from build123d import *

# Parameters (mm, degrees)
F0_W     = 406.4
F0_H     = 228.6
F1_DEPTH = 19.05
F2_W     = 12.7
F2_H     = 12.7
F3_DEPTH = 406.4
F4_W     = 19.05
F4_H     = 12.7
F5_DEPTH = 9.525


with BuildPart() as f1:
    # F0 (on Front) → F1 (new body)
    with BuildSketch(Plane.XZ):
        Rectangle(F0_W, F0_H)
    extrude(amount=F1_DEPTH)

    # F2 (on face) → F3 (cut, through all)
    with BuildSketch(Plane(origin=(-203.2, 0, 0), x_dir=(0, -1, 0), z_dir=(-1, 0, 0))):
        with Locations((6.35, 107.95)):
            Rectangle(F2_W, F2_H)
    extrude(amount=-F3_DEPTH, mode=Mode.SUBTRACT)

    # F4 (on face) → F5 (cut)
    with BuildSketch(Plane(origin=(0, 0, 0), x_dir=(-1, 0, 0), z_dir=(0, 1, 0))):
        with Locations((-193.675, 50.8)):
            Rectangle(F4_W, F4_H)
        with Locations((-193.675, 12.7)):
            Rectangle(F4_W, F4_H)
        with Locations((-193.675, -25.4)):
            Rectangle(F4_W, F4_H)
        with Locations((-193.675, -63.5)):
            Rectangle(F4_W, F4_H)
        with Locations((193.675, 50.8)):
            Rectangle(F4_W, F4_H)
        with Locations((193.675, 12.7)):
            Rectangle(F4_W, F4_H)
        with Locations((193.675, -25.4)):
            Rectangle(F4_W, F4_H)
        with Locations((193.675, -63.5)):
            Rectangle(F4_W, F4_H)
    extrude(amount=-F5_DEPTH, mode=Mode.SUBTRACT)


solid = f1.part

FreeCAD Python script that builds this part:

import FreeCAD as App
import Part
import Sketcher

V = App.Vector
Q = App.Units.Quantity


def add_polygon(sketch, points):
    """Adds a closed chain of lines whose ends are joined by coincident constraints."""
    first, n = sketch.GeometryCount, len(points)
    for a, b in zip(points, points[1:] + points[:1]):
        sketch.addGeometry(Part.LineSegment(App.Vector(*a, 0), App.Vector(*b, 0)), False)
    for i in range(n):
        sketch.addConstraint(Sketcher.Constraint("Coincident", first + i, 2, first + (i + 1) % n, 1))

doc = App.newDocument("Part")
body = doc.addObject("PartDesign::Body", "Body")

# Sketch on XZ plane
sketch1 = body.newObject("Sketcher::SketchObject", "Sketch")
sketch1.AttachmentSupport = (doc.getObject("XZ_Plane"), [""])
sketch1.MapMode = "FlatFace"
add_polygon(sketch1, [(-203, 114), (-203, -114), (203, -114), (203, 114)])  # lines 0-3
sketch1.addConstraint(Sketcher.Constraint("Vertical", 0))
sketch1.addConstraint(Sketcher.Constraint("Horizontal", 1))
sketch1.addConstraint(Sketcher.Constraint("Vertical", 2))
sketch1.addConstraint(Sketcher.Constraint("Horizontal", 3))
sketch1.addConstraint(Sketcher.Constraint("Symmetric", 0, 2, 2, 2, -1, 1))
sketch1.addConstraint(Sketcher.Constraint("DistanceX", 1, 1, 1, 2, Q("16 in")))
sketch1.addConstraint(Sketcher.Constraint("DistanceY", 0, 2, 0, 1, Q("9 in")))
pad1 = body.newObject("PartDesign::Pad", "Pad")
pad1.Profile = sketch1
pad1.Length = Q("0.75 in")

# Sketch on YZ plane
sketch2 = body.newObject("Sketcher::SketchObject", "Sketch001")
sketch2.AttachmentSupport = (doc.getObject("YZ_Plane"), [""])
sketch2.MapMode = "FlatFace"
sketch2.AttachmentOffset = App.Placement(V(0, 0, -8 * 25.4), App.Rotation())
add_polygon(sketch2, [(0, 114), (0, 102), (-13, 102), (-13, 114)])  # lines 0-3
sketch2.addConstraint(Sketcher.Constraint("Vertical", 0))
sketch2.addConstraint(Sketcher.Constraint("Horizontal", 1))
sketch2.addConstraint(Sketcher.Constraint("Vertical", 2))
sketch2.addConstraint(Sketcher.Constraint("Horizontal", 3))
sketch2.addConstraint(Sketcher.Constraint("PointOnObject", 0, 2, -2))
sketch2.addConstraint(Sketcher.Constraint("Equal", 3, 0))
sketch2.addConstraint(Sketcher.Constraint("DistanceX", 1, 2, 1, 1, Q("0.5 in")))
sketch2.addConstraint(Sketcher.Constraint("DistanceY", -1, 1, 0, 2, Q("4 in")))
pocket1 = body.newObject("PartDesign::Pocket", "Pocket")
pocket1.Profile = sketch2
pocket1.Type = "ThroughAll"
pocket1.Reversed = True

# Sketch on XZ plane
sketch3 = body.newObject("Sketcher::SketchObject", "Sketch002")
sketch3.AttachmentSupport = (doc.getObject("XZ_Plane"), [""])
sketch3.MapMode = "FlatFace"
add_polygon(sketch3, [(203, 57), (203, 44), (184, 44), (184, 57)])  # lines 0-3
add_polygon(sketch3, [(203, 19), (203, 6), (184, 6), (184, 19)])  # lines 4-7
add_polygon(sketch3, [(203, -19), (203, -32), (184, -32), (184, -19)])  # lines 8-11
add_polygon(sketch3, [(203, -57), (203, -70), (184, -70), (184, -57)])  # lines 12-15
add_polygon(sketch3, [(-184, 57), (-184, 44), (-203, 44), (-203, 57)])  # lines 16-19
add_polygon(sketch3, [(-184, 19), (-184, 6), (-203, 6), (-203, 19)])  # lines 20-23
add_polygon(sketch3, [(-184, -19), (-184, -32), (-203, -32), (-203, -19)])  # lines 24-27
add_polygon(sketch3, [(-184, -57), (-184, -70), (-203, -70), (-203, -57)])  # lines 28-31
sketch3.addConstraint(Sketcher.Constraint("Vertical", 0))
sketch3.addConstraint(Sketcher.Constraint("Horizontal", 1))
sketch3.addConstraint(Sketcher.Constraint("Vertical", 2))
sketch3.addConstraint(Sketcher.Constraint("Horizontal", 3))
sketch3.addConstraint(Sketcher.Constraint("Vertical", 4))
sketch3.addConstraint(Sketcher.Constraint("Horizontal", 5))
sketch3.addConstraint(Sketcher.Constraint("Vertical", 6))
sketch3.addConstraint(Sketcher.Constraint("Horizontal", 7))
sketch3.addConstraint(Sketcher.Constraint("Vertical", 8))
sketch3.addConstraint(Sketcher.Constraint("Horizontal", 9))
sketch3.addConstraint(Sketcher.Constraint("Vertical", 10))
sketch3.addConstraint(Sketcher.Constraint("Horizontal", 11))
sketch3.addConstraint(Sketcher.Constraint("Vertical", 12))
sketch3.addConstraint(Sketcher.Constraint("Horizontal", 13))
sketch3.addConstraint(Sketcher.Constraint("Vertical", 14))
sketch3.addConstraint(Sketcher.Constraint("Horizontal", 15))
sketch3.addConstraint(Sketcher.Constraint("Vertical", 16))
sketch3.addConstraint(Sketcher.Constraint("Horizontal", 17))
sketch3.addConstraint(Sketcher.Constraint("Vertical", 18))
sketch3.addConstraint(Sketcher.Constraint("Horizontal", 19))
sketch3.addConstraint(Sketcher.Constraint("Vertical", 20))
sketch3.addConstraint(Sketcher.Constraint("Horizontal", 21))
sketch3.addConstraint(Sketcher.Constraint("Vertical", 22))
sketch3.addConstraint(Sketcher.Constraint("Horizontal", 23))
sketch3.addConstraint(Sketcher.Constraint("Vertical", 24))
sketch3.addConstraint(Sketcher.Constraint("Horizontal", 25))
sketch3.addConstraint(Sketcher.Constraint("Vertical", 26))
sketch3.addConstraint(Sketcher.Constraint("Horizontal", 27))
sketch3.addConstraint(Sketcher.Constraint("Vertical", 28))
sketch3.addConstraint(Sketcher.Constraint("Horizontal", 29))
sketch3.addConstraint(Sketcher.Constraint("Vertical", 30))
sketch3.addConstraint(Sketcher.Constraint("Horizontal", 31))
sketch3.addConstraint(Sketcher.Constraint("Symmetric", 15, 2, 18, 2, -1, 1))
sketch3.addConstraint(Sketcher.Constraint("Symmetric", 11, 2, 22, 2, -1, 1))
sketch3.addConstraint(Sketcher.Constraint("Symmetric", 7, 2, 26, 2, -1, 1))
sketch3.addConstraint(Sketcher.Constraint("Symmetric", 3, 2, 30, 2, -1, 1))
sketch3.addConstraint(Sketcher.Constraint("Symmetric", 1, 2, 16, 2, -2))
sketch3.addConstraint(Sketcher.Constraint("Symmetric", 3, 2, 18, 2, -2))
sketch3.addConstraint(Sketcher.Constraint("Symmetric", 5, 2, 20, 2, -2))
sketch3.addConstraint(Sketcher.Constraint("Symmetric", 7, 2, 22, 2, -2))
sketch3.addConstraint(Sketcher.Constraint("Symmetric", 9, 2, 24, 2, -2))
sketch3.addConstraint(Sketcher.Constraint("Symmetric", 13, 2, 28, 2, -2))
sketch3.addConstraint(Sketcher.Constraint("Vertical", 3, 2, 4, 2))
sketch3.addConstraint(Sketcher.Constraint("Vertical", 2, 2, 5, 2))
sketch3.addConstraint(Sketcher.Constraint("Vertical", 6, 2, 9, 2))
sketch3.addConstraint(Sketcher.Constraint("Vertical", 10, 2, 13, 2))
sketch3.addConstraint(Sketcher.Constraint("Equal", 2, 4))
sketch3.addConstraint(Sketcher.Constraint("Equal", 6, 8))
sketch3.addConstraint(Sketcher.Constraint("Equal", 10, 12))
sketch3.addConstraint(Sketcher.Constraint("DistanceY", 0, 2, 0, 1, Q("0.5 in")))
sketch3.addConstraint(Sketcher.Constraint("DistanceX", -1, 1, 0, 2, Q("8 in")))
sketch3.addConstraint(Sketcher.Constraint("DistanceY", 4, 2, 3, 2, Q("2 in")))
sketch3.addConstraint(Sketcher.Constraint("DistanceY", 8, 2, 7, 2, Q("2 in")))
sketch3.addConstraint(Sketcher.Constraint("DistanceX", 1, 2, 1, 1, Q("0.75 in")))
pocket2 = body.newObject("PartDesign::Pocket", "Pocket001")
pocket2.Profile = sketch3
pocket2.Length = Q("0.375 in")
pocket2.Reversed = True

doc.recompute()
